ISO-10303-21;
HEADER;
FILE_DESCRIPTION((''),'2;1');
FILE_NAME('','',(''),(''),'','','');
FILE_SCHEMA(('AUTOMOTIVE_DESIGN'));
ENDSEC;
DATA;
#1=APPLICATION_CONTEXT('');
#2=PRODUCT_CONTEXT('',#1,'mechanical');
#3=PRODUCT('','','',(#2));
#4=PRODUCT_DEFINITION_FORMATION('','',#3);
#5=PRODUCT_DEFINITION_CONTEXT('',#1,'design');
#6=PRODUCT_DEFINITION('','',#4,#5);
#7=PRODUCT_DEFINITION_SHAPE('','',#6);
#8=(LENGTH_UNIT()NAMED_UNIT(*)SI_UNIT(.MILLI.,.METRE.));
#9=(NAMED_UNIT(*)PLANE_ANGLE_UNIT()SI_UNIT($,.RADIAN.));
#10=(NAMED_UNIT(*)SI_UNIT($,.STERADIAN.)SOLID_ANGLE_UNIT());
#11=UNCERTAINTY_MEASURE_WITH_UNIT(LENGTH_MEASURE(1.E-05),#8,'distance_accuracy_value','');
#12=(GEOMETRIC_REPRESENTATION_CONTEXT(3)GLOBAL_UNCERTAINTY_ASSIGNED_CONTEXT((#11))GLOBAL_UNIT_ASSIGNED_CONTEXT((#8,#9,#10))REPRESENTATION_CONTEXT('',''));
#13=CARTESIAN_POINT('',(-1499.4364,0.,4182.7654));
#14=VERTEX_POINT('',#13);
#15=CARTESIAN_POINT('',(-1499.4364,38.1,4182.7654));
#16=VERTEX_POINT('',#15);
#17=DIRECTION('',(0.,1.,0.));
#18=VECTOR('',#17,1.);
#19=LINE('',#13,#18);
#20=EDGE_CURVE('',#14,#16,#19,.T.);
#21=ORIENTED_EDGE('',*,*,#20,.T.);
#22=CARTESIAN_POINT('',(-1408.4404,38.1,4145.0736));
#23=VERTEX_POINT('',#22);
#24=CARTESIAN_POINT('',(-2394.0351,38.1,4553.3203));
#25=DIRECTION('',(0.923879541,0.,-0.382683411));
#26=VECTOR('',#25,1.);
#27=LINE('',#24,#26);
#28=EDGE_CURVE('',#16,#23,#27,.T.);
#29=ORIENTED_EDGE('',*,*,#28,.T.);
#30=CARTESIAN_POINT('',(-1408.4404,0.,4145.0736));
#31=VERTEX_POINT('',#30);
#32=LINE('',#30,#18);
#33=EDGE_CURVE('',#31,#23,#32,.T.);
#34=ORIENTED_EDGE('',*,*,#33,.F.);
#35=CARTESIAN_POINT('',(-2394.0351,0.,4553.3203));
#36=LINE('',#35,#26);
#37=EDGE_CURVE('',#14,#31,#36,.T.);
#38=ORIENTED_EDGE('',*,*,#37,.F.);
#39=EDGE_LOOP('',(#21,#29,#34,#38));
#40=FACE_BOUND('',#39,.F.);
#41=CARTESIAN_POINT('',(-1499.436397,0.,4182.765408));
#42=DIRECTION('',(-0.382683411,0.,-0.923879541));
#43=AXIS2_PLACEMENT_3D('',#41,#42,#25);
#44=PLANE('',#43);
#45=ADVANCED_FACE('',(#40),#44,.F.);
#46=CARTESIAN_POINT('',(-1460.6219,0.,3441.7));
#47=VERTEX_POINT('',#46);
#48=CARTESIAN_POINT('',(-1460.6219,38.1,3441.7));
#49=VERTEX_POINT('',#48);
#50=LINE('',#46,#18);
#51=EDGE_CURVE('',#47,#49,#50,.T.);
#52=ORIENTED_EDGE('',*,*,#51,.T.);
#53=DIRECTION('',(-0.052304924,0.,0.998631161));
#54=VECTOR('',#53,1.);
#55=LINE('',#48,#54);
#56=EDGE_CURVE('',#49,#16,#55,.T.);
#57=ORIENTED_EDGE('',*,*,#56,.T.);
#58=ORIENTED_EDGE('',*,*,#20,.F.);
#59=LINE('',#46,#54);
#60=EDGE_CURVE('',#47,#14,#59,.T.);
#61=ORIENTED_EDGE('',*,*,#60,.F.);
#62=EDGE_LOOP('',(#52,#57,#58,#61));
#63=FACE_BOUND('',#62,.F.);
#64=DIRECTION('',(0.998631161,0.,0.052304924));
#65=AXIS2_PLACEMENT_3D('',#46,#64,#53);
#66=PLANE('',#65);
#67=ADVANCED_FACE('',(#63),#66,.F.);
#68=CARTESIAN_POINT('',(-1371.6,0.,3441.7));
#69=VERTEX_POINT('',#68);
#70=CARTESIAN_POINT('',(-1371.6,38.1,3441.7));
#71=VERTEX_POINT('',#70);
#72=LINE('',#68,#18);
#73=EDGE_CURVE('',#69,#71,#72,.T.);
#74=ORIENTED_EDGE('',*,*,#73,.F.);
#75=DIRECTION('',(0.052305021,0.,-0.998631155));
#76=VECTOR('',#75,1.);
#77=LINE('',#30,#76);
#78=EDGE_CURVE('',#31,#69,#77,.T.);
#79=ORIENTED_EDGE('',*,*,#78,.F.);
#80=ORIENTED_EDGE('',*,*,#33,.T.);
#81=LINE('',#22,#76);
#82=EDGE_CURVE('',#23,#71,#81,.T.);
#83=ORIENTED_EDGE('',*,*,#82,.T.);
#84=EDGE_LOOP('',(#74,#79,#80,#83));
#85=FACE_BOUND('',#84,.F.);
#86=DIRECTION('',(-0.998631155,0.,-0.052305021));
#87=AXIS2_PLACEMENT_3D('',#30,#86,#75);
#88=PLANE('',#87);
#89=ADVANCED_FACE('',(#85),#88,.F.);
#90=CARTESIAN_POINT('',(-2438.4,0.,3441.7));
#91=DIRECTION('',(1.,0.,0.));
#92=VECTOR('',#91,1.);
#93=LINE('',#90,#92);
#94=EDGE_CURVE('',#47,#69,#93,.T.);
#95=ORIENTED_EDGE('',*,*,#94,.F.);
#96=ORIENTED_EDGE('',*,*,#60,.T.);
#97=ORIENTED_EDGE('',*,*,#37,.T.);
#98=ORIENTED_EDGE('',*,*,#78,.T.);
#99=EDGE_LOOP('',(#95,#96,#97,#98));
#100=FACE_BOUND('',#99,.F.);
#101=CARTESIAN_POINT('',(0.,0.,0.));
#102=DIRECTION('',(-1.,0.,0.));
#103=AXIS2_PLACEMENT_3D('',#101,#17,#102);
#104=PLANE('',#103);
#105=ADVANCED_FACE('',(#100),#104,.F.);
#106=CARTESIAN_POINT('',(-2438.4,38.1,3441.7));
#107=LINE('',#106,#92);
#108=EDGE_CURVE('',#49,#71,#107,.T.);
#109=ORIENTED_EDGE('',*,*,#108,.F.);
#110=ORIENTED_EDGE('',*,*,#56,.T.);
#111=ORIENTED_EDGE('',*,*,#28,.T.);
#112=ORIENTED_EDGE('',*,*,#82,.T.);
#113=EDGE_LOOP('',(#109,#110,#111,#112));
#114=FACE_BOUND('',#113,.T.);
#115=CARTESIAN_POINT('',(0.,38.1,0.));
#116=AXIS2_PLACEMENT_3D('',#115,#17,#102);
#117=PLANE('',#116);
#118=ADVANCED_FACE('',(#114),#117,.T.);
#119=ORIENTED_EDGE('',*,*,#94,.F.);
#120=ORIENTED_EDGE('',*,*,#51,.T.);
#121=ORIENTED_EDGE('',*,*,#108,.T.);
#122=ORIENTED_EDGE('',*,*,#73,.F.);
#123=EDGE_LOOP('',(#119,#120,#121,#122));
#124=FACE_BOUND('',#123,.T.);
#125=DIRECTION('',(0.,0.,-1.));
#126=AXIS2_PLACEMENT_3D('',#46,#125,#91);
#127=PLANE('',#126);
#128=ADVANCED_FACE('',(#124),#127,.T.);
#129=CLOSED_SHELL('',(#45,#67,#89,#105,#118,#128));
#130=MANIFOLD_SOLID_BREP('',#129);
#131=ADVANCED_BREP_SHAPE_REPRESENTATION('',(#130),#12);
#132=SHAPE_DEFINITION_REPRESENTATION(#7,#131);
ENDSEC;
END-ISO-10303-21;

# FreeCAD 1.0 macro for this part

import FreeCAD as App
import Part
import Sketcher
from FreeCAD import Vector
Q = App.Units.Quantity

doc = App.newDocument("Part")
params = doc.addObject("Spreadsheet::Sheet", "Params")
for row, (alias, value) in enumerate([
    ("pad1_length", "1.5 in"),
], start=1):
    params.set(f"A{row}", alias)
    params.set(f"B{row}", "=" + value)
    params.setAlias(f"B{row}", alias)

body = doc.addObject("PartDesign::Body", "Body")

# Sketch on XZ plane
sketch1 = body.newObject("Sketcher::SketchObject", "Sketch")
sketch1.AttachmentSupport = (doc.getObject("XZ_Plane"), [""])
sketch1.MapMode = "FlatFace"
sketch1.addGeometry([
    Part.LineSegment(Vector(-1408.4404, 4145.0736, 0), Vector(-1371.6, 3441.7, 0)),
    Part.LineSegment(Vector(-1371.6, 3441.7, 0), Vector(-1460.6219, 3441.7, 0)),
    Part.LineSegment(Vector(-1460.6219, 3441.7, 0), Vector(-1499.4364, 4182.7654, 0)),
    Part.LineSegment(Vector(-1499.436397, 4182.765408, 0), Vector(-1408.440388, 4145.073629, 0)),
], False)
sketch1.addConstraint([
    Sketcher.Constraint("Coincident", 0, 2, 1, 1),
    Sketcher.Constraint("Coincident", 1, 2, 2, 1),
    Sketcher.Constraint("Coincident", 2, 2, 3, 1),
    Sketcher.Constraint("Coincident", 3, 2, 0, 1),
    Sketcher.Constraint("Horizontal", 1),
    Sketcher.Constraint("Parallel", 0, 2),
    Sketcher.Constraint("DistanceX", 0, 2, -1, 1, Q("54 in")),
    Sketcher.Constraint("DistanceY", -1, 1, 0, 2, Q("135.5 in")),
    Sketcher.Constraint("Angle", 3, Q("-22.5 deg")),
    Sketcher.Constraint("DistanceX", 1, 2, 1, 1, Q("3.5048 in")),
    Sketcher.Constraint("Distance", 2, Q("29.2158 in")),
    Sketcher.Constraint("Distance", 3, Q("3.8777 in")),
])
pad1 = body.newObject("PartDesign::Pad", "Pad")
pad1.Profile = sketch1
pad1.setExpression("Length", "Params.pad1_length")
pad1.Reversed = True

doc.recompute()
